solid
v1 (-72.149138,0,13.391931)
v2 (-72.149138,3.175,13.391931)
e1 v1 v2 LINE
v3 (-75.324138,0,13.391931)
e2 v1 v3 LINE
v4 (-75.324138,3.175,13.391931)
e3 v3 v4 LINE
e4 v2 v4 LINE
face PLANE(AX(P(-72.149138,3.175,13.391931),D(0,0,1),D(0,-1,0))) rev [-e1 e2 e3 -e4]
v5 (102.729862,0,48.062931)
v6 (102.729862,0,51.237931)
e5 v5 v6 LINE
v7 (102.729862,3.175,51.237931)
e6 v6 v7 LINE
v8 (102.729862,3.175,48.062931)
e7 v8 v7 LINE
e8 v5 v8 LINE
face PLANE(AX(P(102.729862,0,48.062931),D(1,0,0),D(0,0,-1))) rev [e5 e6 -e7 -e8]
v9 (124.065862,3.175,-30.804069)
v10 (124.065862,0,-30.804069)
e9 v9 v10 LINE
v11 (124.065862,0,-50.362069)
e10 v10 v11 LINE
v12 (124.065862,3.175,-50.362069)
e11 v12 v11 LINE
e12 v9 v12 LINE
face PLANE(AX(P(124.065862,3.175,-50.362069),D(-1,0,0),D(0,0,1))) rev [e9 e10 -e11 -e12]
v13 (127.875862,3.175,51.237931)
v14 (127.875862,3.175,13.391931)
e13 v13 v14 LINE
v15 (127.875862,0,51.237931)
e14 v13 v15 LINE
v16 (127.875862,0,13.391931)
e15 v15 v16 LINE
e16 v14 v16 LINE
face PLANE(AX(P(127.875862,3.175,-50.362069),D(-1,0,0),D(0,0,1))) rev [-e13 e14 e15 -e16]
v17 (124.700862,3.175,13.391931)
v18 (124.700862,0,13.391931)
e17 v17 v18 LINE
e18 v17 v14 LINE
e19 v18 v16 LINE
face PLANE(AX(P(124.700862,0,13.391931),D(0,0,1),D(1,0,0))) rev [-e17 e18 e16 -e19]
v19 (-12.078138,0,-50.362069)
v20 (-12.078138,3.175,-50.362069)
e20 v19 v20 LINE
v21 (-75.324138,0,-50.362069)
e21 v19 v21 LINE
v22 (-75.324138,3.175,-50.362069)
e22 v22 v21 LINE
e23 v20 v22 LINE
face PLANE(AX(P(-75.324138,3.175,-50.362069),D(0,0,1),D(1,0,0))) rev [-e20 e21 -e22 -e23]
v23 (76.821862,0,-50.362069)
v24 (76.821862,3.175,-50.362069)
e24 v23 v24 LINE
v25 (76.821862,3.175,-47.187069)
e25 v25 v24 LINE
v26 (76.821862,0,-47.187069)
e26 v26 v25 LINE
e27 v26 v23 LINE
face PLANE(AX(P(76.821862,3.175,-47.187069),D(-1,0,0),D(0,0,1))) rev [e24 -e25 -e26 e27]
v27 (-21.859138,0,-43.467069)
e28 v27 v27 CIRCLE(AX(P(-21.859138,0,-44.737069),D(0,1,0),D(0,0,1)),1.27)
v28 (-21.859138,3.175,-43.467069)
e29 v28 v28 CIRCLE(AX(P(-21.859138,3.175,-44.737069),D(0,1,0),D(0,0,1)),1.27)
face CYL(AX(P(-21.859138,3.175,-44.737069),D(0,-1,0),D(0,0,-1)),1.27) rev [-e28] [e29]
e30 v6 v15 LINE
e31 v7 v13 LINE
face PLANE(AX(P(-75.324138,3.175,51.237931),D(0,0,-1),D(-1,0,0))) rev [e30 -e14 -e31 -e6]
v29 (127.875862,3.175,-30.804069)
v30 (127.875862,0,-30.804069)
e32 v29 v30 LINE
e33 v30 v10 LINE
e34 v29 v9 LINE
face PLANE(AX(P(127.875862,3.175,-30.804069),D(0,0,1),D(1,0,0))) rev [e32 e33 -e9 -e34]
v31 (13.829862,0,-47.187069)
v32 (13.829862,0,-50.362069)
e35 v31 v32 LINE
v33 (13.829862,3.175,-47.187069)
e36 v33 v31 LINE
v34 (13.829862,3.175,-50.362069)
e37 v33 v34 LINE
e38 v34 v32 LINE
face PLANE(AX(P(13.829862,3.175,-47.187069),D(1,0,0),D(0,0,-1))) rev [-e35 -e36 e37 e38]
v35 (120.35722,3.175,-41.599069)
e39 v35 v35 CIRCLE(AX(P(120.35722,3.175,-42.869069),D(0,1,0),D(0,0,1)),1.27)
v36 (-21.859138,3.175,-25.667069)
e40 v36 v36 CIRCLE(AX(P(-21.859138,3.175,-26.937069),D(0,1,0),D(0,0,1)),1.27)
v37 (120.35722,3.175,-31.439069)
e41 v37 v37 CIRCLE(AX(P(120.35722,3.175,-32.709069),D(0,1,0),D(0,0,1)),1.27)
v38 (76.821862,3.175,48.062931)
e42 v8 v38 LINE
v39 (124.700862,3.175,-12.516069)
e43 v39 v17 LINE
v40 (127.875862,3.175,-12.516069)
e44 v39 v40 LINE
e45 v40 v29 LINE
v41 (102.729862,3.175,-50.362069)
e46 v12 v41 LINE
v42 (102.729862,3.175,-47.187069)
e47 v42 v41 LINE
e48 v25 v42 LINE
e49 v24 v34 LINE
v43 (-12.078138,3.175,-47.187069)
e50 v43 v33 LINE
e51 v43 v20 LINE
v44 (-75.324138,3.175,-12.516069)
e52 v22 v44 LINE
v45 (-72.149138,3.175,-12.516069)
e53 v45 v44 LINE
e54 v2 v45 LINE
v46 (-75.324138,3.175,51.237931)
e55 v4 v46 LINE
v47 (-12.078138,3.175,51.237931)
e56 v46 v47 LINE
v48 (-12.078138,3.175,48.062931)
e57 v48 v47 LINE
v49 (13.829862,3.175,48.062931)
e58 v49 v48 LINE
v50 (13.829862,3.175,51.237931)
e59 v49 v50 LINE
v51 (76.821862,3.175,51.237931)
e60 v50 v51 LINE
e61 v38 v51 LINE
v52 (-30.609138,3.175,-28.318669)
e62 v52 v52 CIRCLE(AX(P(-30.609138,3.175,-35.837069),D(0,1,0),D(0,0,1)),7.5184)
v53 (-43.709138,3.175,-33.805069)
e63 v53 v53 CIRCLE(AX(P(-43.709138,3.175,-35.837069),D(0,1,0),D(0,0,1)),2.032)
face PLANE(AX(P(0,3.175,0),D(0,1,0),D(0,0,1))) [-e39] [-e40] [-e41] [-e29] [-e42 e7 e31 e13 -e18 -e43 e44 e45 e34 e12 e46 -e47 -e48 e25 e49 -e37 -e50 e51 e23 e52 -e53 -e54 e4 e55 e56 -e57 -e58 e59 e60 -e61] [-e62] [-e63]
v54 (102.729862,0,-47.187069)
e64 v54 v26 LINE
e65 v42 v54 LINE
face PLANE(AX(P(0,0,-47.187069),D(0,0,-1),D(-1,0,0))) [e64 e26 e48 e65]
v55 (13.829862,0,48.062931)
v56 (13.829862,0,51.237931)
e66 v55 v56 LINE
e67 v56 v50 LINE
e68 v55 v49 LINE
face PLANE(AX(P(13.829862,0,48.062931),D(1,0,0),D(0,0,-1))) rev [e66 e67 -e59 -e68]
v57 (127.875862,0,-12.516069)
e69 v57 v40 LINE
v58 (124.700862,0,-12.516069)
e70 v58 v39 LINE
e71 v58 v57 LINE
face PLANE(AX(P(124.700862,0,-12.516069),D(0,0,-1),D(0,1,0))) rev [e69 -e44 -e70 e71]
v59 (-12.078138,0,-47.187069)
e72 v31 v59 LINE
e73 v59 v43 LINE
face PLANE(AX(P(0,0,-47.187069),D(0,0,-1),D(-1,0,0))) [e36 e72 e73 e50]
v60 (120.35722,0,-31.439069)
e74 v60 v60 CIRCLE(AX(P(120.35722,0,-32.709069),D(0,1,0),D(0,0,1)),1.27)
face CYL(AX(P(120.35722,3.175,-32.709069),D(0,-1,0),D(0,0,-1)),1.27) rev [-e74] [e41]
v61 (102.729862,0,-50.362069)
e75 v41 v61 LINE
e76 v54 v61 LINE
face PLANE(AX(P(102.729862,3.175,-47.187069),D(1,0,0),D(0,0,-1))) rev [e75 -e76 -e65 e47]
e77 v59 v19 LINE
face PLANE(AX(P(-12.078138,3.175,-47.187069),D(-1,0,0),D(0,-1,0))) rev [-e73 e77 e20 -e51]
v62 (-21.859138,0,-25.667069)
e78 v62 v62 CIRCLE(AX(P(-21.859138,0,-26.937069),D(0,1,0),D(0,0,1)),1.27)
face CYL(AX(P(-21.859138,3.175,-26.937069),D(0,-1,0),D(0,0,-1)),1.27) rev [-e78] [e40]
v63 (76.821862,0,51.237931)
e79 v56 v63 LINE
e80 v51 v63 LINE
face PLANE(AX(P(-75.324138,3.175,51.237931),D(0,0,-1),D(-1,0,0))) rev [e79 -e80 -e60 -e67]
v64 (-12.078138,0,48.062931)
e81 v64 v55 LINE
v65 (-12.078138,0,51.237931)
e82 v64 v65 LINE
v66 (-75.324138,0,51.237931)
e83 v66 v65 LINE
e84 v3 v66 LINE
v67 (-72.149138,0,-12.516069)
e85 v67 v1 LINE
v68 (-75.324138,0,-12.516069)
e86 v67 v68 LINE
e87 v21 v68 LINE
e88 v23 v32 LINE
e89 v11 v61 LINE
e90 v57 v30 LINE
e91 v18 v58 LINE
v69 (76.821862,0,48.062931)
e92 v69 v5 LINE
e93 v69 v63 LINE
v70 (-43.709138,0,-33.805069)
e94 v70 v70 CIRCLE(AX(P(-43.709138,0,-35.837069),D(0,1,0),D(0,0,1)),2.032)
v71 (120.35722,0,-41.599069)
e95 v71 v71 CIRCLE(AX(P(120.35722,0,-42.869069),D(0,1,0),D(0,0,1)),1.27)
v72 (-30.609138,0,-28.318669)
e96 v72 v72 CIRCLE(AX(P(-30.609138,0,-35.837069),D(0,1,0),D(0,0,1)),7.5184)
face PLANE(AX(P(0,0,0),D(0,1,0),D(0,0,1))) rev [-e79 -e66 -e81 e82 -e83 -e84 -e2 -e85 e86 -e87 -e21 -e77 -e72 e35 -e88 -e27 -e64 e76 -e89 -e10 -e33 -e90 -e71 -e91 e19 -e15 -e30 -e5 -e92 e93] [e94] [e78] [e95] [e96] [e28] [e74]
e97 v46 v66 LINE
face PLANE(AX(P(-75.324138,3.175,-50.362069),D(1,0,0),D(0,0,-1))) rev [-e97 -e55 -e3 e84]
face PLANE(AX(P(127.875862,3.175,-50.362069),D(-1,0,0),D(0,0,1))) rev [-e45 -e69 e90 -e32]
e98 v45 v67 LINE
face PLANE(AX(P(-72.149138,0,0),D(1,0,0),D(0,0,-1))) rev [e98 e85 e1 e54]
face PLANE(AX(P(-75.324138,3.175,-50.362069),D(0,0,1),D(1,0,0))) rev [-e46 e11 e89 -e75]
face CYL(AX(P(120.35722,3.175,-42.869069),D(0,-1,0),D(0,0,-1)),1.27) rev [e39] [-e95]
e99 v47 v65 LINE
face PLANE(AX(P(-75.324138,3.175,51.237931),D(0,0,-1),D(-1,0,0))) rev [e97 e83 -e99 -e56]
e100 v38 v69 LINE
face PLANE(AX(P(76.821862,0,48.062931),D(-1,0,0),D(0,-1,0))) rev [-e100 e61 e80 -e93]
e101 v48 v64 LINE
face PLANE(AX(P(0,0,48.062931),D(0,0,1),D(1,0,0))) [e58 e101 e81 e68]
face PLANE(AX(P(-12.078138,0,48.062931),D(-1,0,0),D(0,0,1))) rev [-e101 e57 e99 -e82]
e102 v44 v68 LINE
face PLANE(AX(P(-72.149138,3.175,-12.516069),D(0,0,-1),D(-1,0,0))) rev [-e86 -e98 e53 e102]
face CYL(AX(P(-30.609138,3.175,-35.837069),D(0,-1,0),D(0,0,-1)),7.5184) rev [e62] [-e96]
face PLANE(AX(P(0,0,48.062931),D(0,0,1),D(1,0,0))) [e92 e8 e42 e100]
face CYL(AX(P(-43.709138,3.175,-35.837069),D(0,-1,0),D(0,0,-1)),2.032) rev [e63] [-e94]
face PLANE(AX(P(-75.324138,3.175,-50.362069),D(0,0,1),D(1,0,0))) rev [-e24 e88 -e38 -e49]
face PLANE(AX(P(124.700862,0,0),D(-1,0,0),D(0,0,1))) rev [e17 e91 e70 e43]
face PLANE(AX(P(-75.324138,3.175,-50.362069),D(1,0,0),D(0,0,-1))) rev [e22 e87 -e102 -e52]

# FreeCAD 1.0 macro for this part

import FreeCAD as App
import Part
import Sketcher

V = App.Vector
Q = App.Units.Quantity


def add_polygon(sketch, points):
    """Adds a closed chain of lines whose ends are joined by coincident constraints."""
    first, n = sketch.GeometryCount, len(points)
    for a, b in zip(points, points[1:] + points[:1]):
        sketch.addGeometry(Part.LineSegment(App.Vector(*a, 0), App.Vector(*b, 0)), False)
    for i in range(n):
        sketch.addConstraint(Sketcher.Constraint("Coincident", first + i, 2, first + (i + 1) % n, 1))

doc = App.newDocument("Part")
body = doc.addObject("PartDesign::Body", "Body")

# Sketch on XZ plane
sketch1 = doc.addObject("Sketcher::SketchObject", "Sketch")
body.addObject(sketch1)
sketch1.AttachmentSupport = (doc.XZ_Plane, [""])
sketch1.MapMode = "FlatFace"
add_polygon(sketch1, [(-75.3, -50.4), (-75.3, 51.2), (127.9, 51.2), (127.9, -50.4)])  # lines 0-3
sketch1.addGeometry(Part.Circle(V(-21.9, -26.9, 0), V(0, 0, 1), 1.3), False)  # 4
sketch1.addGeometry(Part.Circle(V(-43.7, -35.8, 0), V(0, 0, 1), 2), False)  # 5
sketch1.addGeometry(Part.Circle(V(-30.6, -35.8, 0), V(0, 0, 1), 7.5), False)  # 6
sketch1.addGeometry(Part.Circle(V(120.4, -32.7, 0), V(0, 0, 1), 1.3), False)  # 7
sketch1.addGeometry(Part.Circle(V(-21.9, -44.7, 0), V(0, 0, 1), 1.3), False)  # 8
sketch1.addGeometry(Part.Circle(V(120.4, -42.9, 0), V(0, 0, 1), 1.3), False)  # 9
sketch1.addConstraint([
    Sketcher.Constraint("Vertical", 0),
    Sketcher.Constraint("Horizontal", 1),
    Sketcher.Constraint("Vertical", 2),
    Sketcher.Constraint("Horizontal", 3),
    Sketcher.Constraint("Equal", 4, 7),
    Sketcher.Constraint("Equal", 7, 8),
    Sketcher.Constraint("Equal", 8, 9),
    Sketcher.Constraint("Horizontal", 5, 3, 6, 3),
    Sketcher.Constraint("Vertical", 4, 3, 8, 3),
    Sketcher.Constraint("Vertical", 7, 3, 9, 3),
    Sketcher.Constraint("Diameter", 4, Q("0.1 in")),
    Sketcher.Constraint("Diameter", 5, Q("0.16 in")),
    Sketcher.Constraint("DistanceX", 1, 1, 1, 2, Q("8 in")),
    Sketcher.Constraint("DistanceY", 0, 1, 0, 2, Q("4 in")),
    Sketcher.Constraint("Diameter", 6, Q("0.592 in")),
    Sketcher.Constraint("DistanceY", 9, 3, 7, 3, Q("0.4 in")),
    Sketcher.Constraint("DistanceY", 7, 3, 0, 2, Q("3.305 in")),
    Sketcher.Constraint("DistanceX", 5, 3, 4, 3, 21.85),
    Sketcher.Constraint("DistanceY", 5, 3, 4, 3, 8.9),
    Sketcher.Constraint("DistanceX", 6, 3, 4, 3, 8.75),
    Sketcher.Constraint("DistanceY", 7, 3, 4, 3, 5.772),
    Sketcher.Constraint("DistanceY", 8, 3, 6, 3, 8.9),
    Sketcher.Constraint("DistanceX", 0, 2, 5, 3, 31.615),
    Sketcher.Constraint("DistanceY", 4, 3, -1, 1, 26.937069),
    Sketcher.Constraint("DistanceX", -1, 1, 7, 3, 120.35722),
    Sketcher.Constraint("DistanceX", 4, 3, -1, 1, 21.859138),
])
pad1 = doc.addObject("PartDesign::Pad", "Pad")
body.addObject(pad1)
pad1.Profile = sketch1
pad1.Length = Q("0.125 in")
pad1.Reversed = True

# Sketch on XY plane
sketch2 = doc.addObject("Sketcher::SketchObject", "Sketch001")
body.addObject(sketch2)
sketch2.AttachmentSupport = (doc.XY_Plane, [""])
sketch2.MapMode = "FlatFace"
sketch2.AttachmentOffset = App.Placement(V(0, 0, -50.362069), App.Rotation())
add_polygon(sketch2, [(102.7, 3.2), (102.7, 0), (76.8, 0), (76.8, 3.2)])  # lines 0-3
add_polygon(sketch2, [(13.8, 3.2), (13.8, 0), (-12.1, 0), (-12.1, 3.2)])  # lines 4-7
sketch2.addConstraint([
    Sketcher.Constraint("Vertical", 0),
    Sketcher.Constraint("Horizontal", 1),
    Sketcher.Constraint("Vertical", 2),
    Sketcher.Constraint("Horizontal", 3),
    Sketcher.Constraint("Vertical", 4),
    Sketcher.Constraint("Horizontal", 5),
    Sketcher.Constraint("Vertical", 6),
    Sketcher.Constraint("Horizontal", 7),
    Sketcher.Constraint("PointOnObject", 0, 2, -1),
    Sketcher.Constraint("PointOnObject", 4, 2, -1),
    Sketcher.Constraint("Horizontal", 3, 2, 6, 2),
    Sketcher.Constraint("Equal", 3, 5),
    Sketcher.Constraint("DistanceX", 1, 2, 1, 1, Q("1.02 in")),
    Sketcher.Constraint("DistanceX", 4, 2, 0, 2, Q("3.5 in")),
    Sketcher.Constraint("DistanceY", 0, 2, 0, 1, Q("0.125 in")),
    Sketcher.Constraint("DistanceX", -1, 1, 0, 2, 102.729862),
])
pocket1 = doc.addObject("PartDesign::Pocket", "Pocket")
body.addObject(pocket1)
pocket1.Profile = sketch2
pocket1.Length = Q("0.125 in")
pocket1.Reversed = True

# Sketch on XY plane
sketch3 = doc.addObject("Sketcher::SketchObject", "Sketch002")
body.addObject(sketch3)
sketch3.AttachmentSupport = (doc.XY_Plane, [""])
sketch3.MapMode = "FlatFace"
sketch3.AttachmentOffset = App.Placement(V(0, 0, 51.237931), App.Rotation())
add_polygon(sketch3, [(-12.1, 3.2), (-12.1, 0), (13.8, 0), (13.8, 3.2)])  # lines 0-3
add_polygon(sketch3, [(76.8, 3.2), (76.8, 0), (102.7, 0), (102.7, 3.2)])  # lines 4-7
sketch3.addConstraint([
    Sketcher.Constraint("Vertical", 0),
    Sketcher.Constraint("Horizontal", 1),
    Sketcher.Constraint("Vertical", 2),
    Sketcher.Constraint("Horizontal", 3),
    Sketcher.Constraint("Vertical", 4),
    Sketcher.Constraint("Horizontal", 5),
    Sketcher.Constraint("Vertical", 6),
    Sketcher.Constraint("Horizontal", 7),
    Sketcher.Constraint("PointOnObject", 0, 2, -1),
    Sketcher.Constraint("PointOnObject", 4, 2, -1),
    Sketcher.Constraint("Horizontal", 3, 2, 6, 2),
    Sketcher.Constraint("Equal", 3, 5),
    Sketcher.Constraint("DistanceX", 1, 1, 1, 2, Q("1.02 in")),
    Sketcher.Constraint("DistanceX", 0, 2, 4, 2, Q("3.5 in")),
    Sketcher.Constraint("DistanceY", 0, 2, 0, 1, Q("0.125 in")),
    Sketcher.Constraint("DistanceX", 0, 2, -1, 1, 12.078138),
])
pocket2 = doc.addObject("PartDesign::Pocket", "Pocket001")
body.addObject(pocket2)
pocket2.Profile = sketch3
pocket2.Length = Q("0.125 in")

# Sketch on YZ plane
sketch4 = doc.addObject("Sketcher::SketchObject", "Sketch003")
body.addObject(sketch4)
sketch4.AttachmentSupport = (doc.YZ_Plane, [""])
sketch4.MapMode = "FlatFace"
sketch4.AttachmentOffset = App.Placement(V(0, 0, -75.324138), App.Rotation())
add_polygon(sketch4, [(3.2, -12.5), (0, -12.5), (0, 13.4), (3.2, 13.4)])  # lines 0-3
sketch4.addConstraint([
    Sketcher.Constraint("Horizontal", 0),
    Sketcher.Constraint("Vertical", 1),
    Sketcher.Constraint("Horizontal", 2),
    Sketcher.Constraint("Vertical", 3),
    Sketcher.Constraint("PointOnObject", 0, 2, -2),
    Sketcher.Constraint("DistanceY", 1, 1, 1, 2, Q("1.02 in")),
    Sketcher.Constraint("DistanceX", 0, 2, 0, 1, Q("0.125 in")),
    Sketcher.Constraint("DistanceY", 0, 2, -1, 1, 12.516069),
])
pocket3 = doc.addObject("PartDesign::Pocket", "Pocket002")
body.addObject(pocket3)
pocket3.Profile = sketch4
pocket3.Length = Q("0.125 in")
pocket3.Reversed = True

# Sketch on YZ plane
sketch5 = doc.addObject("Sketcher::SketchObject", "Sketch004")
body.addObject(sketch5)
sketch5.AttachmentSupport = (doc.YZ_Plane, [""])
sketch5.MapMode = "FlatFace"
sketch5.AttachmentOffset = App.Placement(V(0, 0, 127.875862), App.Rotation())
add_polygon(sketch5, [(3.2, 13.4), (0, 13.4), (0, -12.5), (3.2, -12.5)])  # lines 0-3
sketch5.addConstraint([
    Sketcher.Constraint("Horizontal", 0),
    Sketcher.Constraint("Vertical", 1),
    Sketcher.Constraint("Horizontal", 2),
    Sketcher.Constraint("Vertical", 3),
    Sketcher.Constraint("PointOnObject", 0, 2, -2),
    Sketcher.Constraint("DistanceY", 1, 2, 1, 1, Q("1.02 in")),
    Sketcher.Constraint("DistanceX", 0, 2, 0, 1, Q("0.125 in")),
    Sketcher.Constraint("DistanceY", -1, 1, 0, 2, 13.391931),
])
pocket4 = doc.addObject("PartDesign::Pocket", "Pocket003")
body.addObject(pocket4)
pocket4.Profile = sketch5
pocket4.Length = Q("0.125 in")

# Sketch on XZ plane
sketch6 = doc.addObject("Sketcher::SketchObject", "Sketch005")
body.addObject(sketch6)
sketch6.AttachmentSupport = (doc.XZ_Plane, [""])
sketch6.MapMode = "FlatFace"
add_polygon(sketch6, [(124.1, -30.8), (124.1, -50.4), (127.9, -50.4), (127.9, -30.8)])  # lines 0-3
sketch6.addConstraint([
    Sketcher.Constraint("Vertical", 0),
    Sketcher.Constraint("Horizontal", 1),
    Sketcher.Constraint("Vertical", 2),
    Sketcher.Constraint("Horizontal", 3),
    Sketcher.Constraint("DistanceX", 1, 1, 1, 2, Q("0.15 in")),
    Sketcher.Constraint("DistanceY", 0, 2, 0, 1, Q("0.77 in")),
    Sketcher.Constraint("DistanceY", 0, 2, -1, 1, 50.362069),
    Sketcher.Constraint("DistanceX", -1, 1, 0, 2, 124.065862),
])
pocket5 = doc.addObject("PartDesign::Pocket", "Pocket004")
body.addObject(pocket5)
pocket5.Profile = sketch6
pocket5.Length = Q("0.125 in")

doc.recompute()
